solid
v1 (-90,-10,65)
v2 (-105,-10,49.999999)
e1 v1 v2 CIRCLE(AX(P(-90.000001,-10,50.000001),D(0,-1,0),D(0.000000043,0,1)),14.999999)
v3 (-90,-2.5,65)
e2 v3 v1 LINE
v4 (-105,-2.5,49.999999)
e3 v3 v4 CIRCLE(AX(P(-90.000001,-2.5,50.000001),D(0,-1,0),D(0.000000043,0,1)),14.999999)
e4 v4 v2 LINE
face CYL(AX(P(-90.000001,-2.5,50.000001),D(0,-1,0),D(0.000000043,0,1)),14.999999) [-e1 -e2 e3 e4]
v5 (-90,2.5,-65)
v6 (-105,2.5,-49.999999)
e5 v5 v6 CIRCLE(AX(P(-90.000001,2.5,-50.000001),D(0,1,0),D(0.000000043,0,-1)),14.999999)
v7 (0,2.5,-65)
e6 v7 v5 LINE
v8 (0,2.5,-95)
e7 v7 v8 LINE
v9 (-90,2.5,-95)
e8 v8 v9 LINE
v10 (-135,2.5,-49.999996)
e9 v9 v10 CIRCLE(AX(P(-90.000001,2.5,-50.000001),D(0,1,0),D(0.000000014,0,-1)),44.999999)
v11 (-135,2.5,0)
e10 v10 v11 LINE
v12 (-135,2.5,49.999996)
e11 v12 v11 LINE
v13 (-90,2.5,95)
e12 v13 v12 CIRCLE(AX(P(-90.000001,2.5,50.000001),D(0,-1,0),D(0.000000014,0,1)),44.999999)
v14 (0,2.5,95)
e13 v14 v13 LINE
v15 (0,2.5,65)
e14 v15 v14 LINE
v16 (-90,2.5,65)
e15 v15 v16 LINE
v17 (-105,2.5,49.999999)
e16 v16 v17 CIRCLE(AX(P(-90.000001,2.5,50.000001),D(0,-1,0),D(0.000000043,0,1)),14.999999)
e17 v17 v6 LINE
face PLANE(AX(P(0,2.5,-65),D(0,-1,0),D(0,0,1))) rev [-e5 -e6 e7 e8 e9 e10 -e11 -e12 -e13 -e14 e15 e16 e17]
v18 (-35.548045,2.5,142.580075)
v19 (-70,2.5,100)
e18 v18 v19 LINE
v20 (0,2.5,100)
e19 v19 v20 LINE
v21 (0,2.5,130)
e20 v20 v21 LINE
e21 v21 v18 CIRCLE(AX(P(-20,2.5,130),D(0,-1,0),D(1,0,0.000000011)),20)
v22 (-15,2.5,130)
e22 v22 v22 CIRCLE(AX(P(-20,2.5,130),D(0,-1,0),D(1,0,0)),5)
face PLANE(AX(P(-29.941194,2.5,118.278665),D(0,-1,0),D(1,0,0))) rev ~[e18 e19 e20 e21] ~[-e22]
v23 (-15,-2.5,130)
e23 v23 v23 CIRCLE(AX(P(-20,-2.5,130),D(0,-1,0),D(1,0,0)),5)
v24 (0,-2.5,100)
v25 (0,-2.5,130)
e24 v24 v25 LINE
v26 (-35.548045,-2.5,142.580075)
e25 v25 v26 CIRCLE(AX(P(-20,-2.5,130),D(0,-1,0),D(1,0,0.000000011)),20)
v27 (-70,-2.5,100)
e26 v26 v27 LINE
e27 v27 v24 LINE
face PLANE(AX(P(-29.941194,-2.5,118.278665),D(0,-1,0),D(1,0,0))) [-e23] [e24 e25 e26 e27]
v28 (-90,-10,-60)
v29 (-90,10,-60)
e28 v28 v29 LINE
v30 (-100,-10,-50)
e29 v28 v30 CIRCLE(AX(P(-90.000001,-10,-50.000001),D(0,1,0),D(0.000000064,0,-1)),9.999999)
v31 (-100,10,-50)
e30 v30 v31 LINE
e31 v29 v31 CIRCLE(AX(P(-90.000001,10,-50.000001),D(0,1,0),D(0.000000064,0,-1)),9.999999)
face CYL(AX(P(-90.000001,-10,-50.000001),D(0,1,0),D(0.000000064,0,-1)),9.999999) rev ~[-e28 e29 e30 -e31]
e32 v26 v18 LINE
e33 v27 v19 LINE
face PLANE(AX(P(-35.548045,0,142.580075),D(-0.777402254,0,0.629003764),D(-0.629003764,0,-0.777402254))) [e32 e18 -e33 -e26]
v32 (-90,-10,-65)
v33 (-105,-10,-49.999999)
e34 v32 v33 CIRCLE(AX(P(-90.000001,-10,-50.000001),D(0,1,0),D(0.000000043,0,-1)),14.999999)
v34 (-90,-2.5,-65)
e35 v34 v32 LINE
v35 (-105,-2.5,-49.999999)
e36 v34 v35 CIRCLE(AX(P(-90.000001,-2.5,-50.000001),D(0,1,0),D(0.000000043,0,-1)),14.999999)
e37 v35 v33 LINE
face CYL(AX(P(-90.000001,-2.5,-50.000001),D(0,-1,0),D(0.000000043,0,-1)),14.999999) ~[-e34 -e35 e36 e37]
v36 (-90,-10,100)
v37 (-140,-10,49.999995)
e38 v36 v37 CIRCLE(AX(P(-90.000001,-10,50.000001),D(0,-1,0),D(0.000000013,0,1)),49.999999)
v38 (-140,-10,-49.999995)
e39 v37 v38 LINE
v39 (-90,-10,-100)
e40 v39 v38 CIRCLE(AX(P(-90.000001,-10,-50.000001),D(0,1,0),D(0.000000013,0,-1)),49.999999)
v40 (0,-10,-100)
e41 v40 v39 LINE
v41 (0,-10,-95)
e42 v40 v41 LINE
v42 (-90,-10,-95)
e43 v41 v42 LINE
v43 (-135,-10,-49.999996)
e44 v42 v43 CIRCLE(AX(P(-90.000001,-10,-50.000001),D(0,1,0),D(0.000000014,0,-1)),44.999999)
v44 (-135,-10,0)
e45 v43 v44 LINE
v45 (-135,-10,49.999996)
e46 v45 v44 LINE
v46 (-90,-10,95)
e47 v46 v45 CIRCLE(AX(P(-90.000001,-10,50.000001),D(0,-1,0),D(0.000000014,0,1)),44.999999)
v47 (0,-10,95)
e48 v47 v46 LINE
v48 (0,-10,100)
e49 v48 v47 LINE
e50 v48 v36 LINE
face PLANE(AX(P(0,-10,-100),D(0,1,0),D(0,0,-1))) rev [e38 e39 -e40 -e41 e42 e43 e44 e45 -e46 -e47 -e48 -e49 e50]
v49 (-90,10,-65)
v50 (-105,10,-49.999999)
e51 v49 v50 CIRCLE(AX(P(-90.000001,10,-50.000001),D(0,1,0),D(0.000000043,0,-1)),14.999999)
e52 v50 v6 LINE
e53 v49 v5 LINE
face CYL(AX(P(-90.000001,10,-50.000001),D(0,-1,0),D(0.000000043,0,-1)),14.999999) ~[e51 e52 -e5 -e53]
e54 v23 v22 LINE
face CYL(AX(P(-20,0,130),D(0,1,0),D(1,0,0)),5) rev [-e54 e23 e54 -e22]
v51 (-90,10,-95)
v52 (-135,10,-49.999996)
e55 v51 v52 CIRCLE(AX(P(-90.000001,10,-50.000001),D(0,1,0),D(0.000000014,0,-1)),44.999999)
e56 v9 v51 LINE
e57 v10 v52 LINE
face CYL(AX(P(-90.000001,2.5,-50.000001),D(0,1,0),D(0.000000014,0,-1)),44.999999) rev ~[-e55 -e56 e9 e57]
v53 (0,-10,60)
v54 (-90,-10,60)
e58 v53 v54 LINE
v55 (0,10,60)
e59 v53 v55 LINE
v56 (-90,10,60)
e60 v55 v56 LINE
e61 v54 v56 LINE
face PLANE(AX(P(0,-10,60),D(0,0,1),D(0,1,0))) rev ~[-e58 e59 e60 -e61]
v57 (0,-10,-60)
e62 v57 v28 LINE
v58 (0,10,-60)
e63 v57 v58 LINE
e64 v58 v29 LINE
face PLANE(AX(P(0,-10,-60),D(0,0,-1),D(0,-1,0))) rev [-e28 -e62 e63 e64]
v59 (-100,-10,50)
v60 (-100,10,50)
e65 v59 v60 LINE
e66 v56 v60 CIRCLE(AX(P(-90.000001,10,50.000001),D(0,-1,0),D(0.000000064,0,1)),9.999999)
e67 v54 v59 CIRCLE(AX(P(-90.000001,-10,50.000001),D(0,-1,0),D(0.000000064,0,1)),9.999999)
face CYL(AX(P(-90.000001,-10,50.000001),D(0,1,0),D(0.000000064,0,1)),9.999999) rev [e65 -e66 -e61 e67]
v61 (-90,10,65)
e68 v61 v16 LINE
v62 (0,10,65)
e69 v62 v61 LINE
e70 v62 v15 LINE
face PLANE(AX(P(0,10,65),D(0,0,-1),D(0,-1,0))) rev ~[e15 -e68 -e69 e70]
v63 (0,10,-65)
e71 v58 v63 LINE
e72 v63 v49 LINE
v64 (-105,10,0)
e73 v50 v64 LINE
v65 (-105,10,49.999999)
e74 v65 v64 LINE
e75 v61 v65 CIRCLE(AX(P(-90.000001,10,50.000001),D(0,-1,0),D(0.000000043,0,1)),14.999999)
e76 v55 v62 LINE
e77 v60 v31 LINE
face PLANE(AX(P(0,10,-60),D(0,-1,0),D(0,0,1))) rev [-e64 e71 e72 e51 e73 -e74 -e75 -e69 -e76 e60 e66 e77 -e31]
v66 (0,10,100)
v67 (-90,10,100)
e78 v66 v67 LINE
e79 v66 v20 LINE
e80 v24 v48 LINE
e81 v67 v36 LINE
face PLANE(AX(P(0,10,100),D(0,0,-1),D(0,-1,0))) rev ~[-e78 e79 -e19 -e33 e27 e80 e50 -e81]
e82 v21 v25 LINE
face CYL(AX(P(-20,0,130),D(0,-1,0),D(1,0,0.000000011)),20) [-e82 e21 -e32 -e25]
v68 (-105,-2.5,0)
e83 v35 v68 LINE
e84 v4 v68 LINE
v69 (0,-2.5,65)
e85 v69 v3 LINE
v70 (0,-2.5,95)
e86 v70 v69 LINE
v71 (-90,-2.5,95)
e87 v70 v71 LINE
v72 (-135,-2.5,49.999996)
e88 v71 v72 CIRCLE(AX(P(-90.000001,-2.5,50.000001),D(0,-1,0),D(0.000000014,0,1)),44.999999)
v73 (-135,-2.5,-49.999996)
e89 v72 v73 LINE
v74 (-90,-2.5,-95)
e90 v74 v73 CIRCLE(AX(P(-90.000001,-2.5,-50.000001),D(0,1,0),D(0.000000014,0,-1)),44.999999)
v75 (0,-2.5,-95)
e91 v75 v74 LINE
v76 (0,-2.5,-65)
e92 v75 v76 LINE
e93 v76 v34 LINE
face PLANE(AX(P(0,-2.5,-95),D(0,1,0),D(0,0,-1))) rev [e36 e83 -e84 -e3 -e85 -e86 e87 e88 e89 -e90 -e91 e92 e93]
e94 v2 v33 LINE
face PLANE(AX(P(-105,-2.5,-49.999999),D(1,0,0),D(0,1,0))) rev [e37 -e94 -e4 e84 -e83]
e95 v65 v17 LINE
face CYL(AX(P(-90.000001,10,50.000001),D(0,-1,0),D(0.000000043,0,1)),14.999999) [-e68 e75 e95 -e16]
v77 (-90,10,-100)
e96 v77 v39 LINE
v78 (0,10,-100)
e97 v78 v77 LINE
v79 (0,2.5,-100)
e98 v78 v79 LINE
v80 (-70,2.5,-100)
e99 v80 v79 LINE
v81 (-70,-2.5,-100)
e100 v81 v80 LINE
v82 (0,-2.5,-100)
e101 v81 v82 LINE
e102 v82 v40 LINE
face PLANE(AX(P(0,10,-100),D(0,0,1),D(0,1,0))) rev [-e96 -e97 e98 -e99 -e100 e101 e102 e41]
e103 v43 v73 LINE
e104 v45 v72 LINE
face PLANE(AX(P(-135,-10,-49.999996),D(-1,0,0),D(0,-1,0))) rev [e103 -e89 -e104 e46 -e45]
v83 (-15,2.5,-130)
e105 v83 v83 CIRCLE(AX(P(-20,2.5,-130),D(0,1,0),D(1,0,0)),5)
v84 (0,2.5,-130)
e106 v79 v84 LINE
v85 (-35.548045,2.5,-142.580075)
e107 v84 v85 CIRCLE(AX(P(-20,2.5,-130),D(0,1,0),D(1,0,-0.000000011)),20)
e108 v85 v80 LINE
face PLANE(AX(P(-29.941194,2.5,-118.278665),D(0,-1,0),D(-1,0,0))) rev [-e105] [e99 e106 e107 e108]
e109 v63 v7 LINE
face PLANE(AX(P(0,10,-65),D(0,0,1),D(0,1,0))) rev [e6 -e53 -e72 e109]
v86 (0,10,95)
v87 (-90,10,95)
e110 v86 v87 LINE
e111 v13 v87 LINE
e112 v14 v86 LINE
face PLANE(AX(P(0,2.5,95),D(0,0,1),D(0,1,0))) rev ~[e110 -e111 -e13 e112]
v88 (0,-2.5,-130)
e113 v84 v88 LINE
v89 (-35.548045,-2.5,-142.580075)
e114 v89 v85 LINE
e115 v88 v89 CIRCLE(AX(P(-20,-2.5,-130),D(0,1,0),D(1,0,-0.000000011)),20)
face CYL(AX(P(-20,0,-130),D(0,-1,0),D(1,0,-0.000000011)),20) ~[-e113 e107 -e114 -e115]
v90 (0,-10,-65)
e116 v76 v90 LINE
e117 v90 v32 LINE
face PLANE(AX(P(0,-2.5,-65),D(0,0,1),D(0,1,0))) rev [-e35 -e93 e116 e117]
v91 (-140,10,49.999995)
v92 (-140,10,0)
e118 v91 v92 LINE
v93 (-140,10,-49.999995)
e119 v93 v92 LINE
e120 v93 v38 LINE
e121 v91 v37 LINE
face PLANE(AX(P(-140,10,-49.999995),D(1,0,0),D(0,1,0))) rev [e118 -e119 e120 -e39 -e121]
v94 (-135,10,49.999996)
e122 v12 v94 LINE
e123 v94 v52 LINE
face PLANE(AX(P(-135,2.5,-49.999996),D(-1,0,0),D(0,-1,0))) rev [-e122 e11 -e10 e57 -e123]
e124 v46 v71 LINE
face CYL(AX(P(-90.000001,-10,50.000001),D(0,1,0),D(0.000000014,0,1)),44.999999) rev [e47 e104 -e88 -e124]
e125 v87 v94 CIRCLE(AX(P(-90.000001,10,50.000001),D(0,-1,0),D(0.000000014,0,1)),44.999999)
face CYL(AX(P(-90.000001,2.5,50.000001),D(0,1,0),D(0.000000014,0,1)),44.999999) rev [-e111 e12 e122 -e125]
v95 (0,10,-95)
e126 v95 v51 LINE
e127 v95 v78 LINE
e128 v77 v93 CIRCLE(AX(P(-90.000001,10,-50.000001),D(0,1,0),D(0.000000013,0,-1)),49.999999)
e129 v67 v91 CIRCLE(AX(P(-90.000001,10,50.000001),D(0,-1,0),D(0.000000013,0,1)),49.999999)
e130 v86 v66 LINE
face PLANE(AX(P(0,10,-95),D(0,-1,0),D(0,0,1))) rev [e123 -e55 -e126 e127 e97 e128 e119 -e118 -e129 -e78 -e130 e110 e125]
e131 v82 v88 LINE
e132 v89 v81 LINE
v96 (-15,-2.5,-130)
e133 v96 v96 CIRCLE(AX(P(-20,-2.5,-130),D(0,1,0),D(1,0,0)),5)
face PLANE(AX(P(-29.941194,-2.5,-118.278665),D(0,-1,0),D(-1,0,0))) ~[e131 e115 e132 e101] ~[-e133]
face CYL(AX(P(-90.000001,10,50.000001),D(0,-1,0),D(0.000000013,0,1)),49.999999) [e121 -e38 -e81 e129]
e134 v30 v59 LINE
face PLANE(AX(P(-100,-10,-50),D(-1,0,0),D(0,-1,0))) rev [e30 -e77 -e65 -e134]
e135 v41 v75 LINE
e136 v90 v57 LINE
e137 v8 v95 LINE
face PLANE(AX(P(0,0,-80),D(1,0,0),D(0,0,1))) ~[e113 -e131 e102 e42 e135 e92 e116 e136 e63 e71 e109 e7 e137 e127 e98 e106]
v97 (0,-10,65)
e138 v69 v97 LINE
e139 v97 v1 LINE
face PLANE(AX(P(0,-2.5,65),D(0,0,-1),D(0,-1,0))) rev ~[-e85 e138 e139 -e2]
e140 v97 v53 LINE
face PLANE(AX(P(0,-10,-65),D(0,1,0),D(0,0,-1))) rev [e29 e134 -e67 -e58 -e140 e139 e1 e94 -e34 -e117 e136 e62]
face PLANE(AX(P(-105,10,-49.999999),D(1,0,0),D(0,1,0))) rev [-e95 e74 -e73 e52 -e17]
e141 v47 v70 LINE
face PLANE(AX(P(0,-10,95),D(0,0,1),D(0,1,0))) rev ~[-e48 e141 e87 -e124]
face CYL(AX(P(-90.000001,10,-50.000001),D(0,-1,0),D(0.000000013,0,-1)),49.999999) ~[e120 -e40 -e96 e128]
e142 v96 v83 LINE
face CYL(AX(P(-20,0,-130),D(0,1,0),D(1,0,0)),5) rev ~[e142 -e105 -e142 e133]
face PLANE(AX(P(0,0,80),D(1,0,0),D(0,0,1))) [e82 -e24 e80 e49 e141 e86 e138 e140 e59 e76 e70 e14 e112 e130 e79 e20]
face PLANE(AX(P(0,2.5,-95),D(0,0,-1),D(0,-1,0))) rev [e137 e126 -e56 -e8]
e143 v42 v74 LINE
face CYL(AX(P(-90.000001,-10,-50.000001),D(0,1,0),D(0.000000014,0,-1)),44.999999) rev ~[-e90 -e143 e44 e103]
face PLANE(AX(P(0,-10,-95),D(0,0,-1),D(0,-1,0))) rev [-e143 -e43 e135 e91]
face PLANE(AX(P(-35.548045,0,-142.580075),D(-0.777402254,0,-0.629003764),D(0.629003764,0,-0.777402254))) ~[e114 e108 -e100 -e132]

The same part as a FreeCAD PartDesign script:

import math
import FreeCAD as App
import Part
import Sketcher
from FreeCAD import Vector

doc = App.newDocument("Part")
body = doc.addObject("PartDesign::Body", "Body")

# Sketch on YZ plane
sketch1 = doc.addObject("Sketcher::SketchObject", "Sketch")
body.addObject(sketch1)
sketch1.AttachmentSupport = (doc.YZ_Plane, [""])
sketch1.MapMode = "FlatFace"
sketch1.addGeometry(Part.LineSegment(Vector(-10, 60, 0), Vector(10, 60, 0)), False)
sketch1.addGeometry(Part.LineSegment(Vector(10, 60, 0), Vector(10, 65, 0)), False)
sketch1.addGeometry(Part.LineSegment(Vector(10, 65, 0), Vector(2.5, 65, 0)), False)
sketch1.addGeometry(Part.LineSegment(Vector(2.5, 65, 0), Vector(2.5, 95, 0)), False)
sketch1.addGeometry(Part.LineSegment(Vector(2.5, 95, 0), Vector(10, 95, 0)), False)
sketch1.addGeometry(Part.LineSegment(Vector(10, 95, 0), Vector(10, 100, 0)), False)
sketch1.addGeometry(Part.LineSegment(Vector(10, 100, 0), Vector(-10, 100, 0)), False)
sketch1.addGeometry(Part.LineSegment(Vector(-10, 100, 0), Vector(-10, 95, 0)), False)
sketch1.addGeometry(Part.LineSegment(Vector(-10, 95, 0), Vector(-2.5, 95, 0)), False)
sketch1.addGeometry(Part.LineSegment(Vector(-2.5, 95, 0), Vector(-2.5, 65, 0)), False)
sketch1.addGeometry(Part.LineSegment(Vector(-2.5, 65, 0), Vector(-10, 65, 0)), False)
sketch1.addGeometry(Part.LineSegment(Vector(-10, 65, 0), Vector(-10, 60, 0)), False)
sketch1.addConstraint(Sketcher.Constraint("Coincident", 0, 2, 1, 1))
sketch1.addConstraint(Sketcher.Constraint("Coincident", 1, 2, 2, 1))
sketch1.addConstraint(Sketcher.Constraint("Coincident", 2, 2, 3, 1))
sketch1.addConstraint(Sketcher.Constraint("Coincident", 3, 2, 4, 1))
sketch1.addConstraint(Sketcher.Constraint("Coincident", 4, 2, 5, 1))
sketch1.addConstraint(Sketcher.Constraint("Coincident", 5, 2, 6, 1))
sketch1.addConstraint(Sketcher.Constraint("Coincident", 6, 2, 7, 1))
sketch1.addConstraint(Sketcher.Constraint("Coincident", 7, 2, 8, 1))
sketch1.addConstraint(Sketcher.Constraint("Coincident", 8, 2, 9, 1))
sketch1.addConstraint(Sketcher.Constraint("Coincident", 9, 2, 10, 1))
sketch1.addConstraint(Sketcher.Constraint("Coincident", 10, 2, 11, 1))
sketch1.addConstraint(Sketcher.Constraint("Coincident", 11, 2, 0, 1))
sketch1.addConstraint(Sketcher.Constraint("Horizontal", 0))
sketch1.addConstraint(Sketcher.Constraint("Vertical", 1))
sketch1.addConstraint(Sketcher.Constraint("Horizontal", 2))
sketch1.addConstraint(Sketcher.Constraint("Vertical", 3))
sketch1.addConstraint(Sketcher.Constraint("Horizontal", 4))
sketch1.addConstraint(Sketcher.Constraint("Vertical", 5))
sketch1.addConstraint(Sketcher.Constraint("Horizontal", 6))
sketch1.addConstraint(Sketcher.Constraint("Vertical", 7))
sketch1.addConstraint(Sketcher.Constraint("Horizontal", 8))
sketch1.addConstraint(Sketcher.Constraint("Vertical", 9))
sketch1.addConstraint(Sketcher.Constraint("Horizontal", 10))
sketch1.addConstraint(Sketcher.Constraint("Vertical", 11))
sketch1.addConstraint(Sketcher.Constraint("Symmetric", 4, 2, 7, 2, -2))
sketch1.addConstraint(Sketcher.Constraint("Symmetric", 2, 2, 9, 2, -2))
sketch1.addConstraint(Sketcher.Constraint("Vertical", 1, 2, 4, 2))
sketch1.addConstraint(Sketcher.Constraint("Vertical", 7, 2, 10, 2))
sketch1.addConstraint(Sketcher.Constraint("Equal", 1, 5))
sketch1.addConstraint(Sketcher.Constraint("DistanceX", 0, 1, 0, 2, 20.0))
sketch1.addConstraint(Sketcher.Constraint("DistanceY", 1, 1, 1, 2, 5.0))
sketch1.addConstraint(Sketcher.Constraint("DistanceY", 3, 1, 3, 2, 30.0))
sketch1.addConstraint(Sketcher.Constraint("DistanceX", 2, 2, 2, 1, 7.5))
sketch1.addConstraint(Sketcher.Constraint("DistanceY", -1, 1, 0, 2, 60.0))

# Sketch on XZ plane
sketch2 = doc.addObject("Sketcher::SketchObject", "Sketch001")
body.addObject(sketch2)
sketch2.AttachmentSupport = (doc.XZ_Plane, [""])
sketch2.MapMode = "FlatFace"
sketch2.addGeometry(Part.LineSegment(Vector(0, 60, 0), Vector(-90, 60, 0)), False)
sketch2.addGeometry(Part.ArcOfCircle(Part.Circle(Vector(-90.000001, 50.000001, 0), Vector(0, 0, 1), 9.999999), math.radians(89.999996), math.radians(180.000004)), False)
sketch2.addGeometry(Part.LineSegment(Vector(-100, 50, 0), Vector(-100, 0, 0)), False)
sketch2.addConstraint(Sketcher.Constraint("Tangent", 0, 2, 1, 1))
sketch2.addConstraint(Sketcher.Constraint("Tangent", 1, 2, 2, 1))
sketch2.addConstraint(Sketcher.Constraint("Horizontal", 0))
sketch2.addConstraint(Sketcher.Constraint("Vertical", 2))
sketch2.addConstraint(Sketcher.Constraint("PointOnObject", 0, 1, -2))
sketch2.addConstraint(Sketcher.Constraint("PointOnObject", 2, 2, -1))
sketch2.addConstraint(Sketcher.Constraint("Radius", 1, 9.999999))
sketch2.addConstraint(Sketcher.Constraint("DistanceX", 0, 2, 0, 1, 90.0))
sketch2.addConstraint(Sketcher.Constraint("DistanceY", 2, 2, 2, 1, 50.0))
doc.recompute()

additivepipe = doc.addObject("PartDesign::AdditivePipe", "AdditivePipe")
body.addObject(additivepipe)
additivepipe.Profile = sketch1
additivepipe.Spine = (sketch2, ["Edge1", "Edge2", "Edge3"])
body2 = doc.addObject("PartDesign::Body", "Body001")
doc.recompute()

body2.BaseFeature = body
doc.recompute()

mirroring = doc.addObject("Part::Mirroring", "Mirroring")
mirroring.Source = body
mirroring.Base = Vector(0, 0, 0)
mirroring.Normal = Vector(0, 0, 1)
body3 = doc.addObject("PartDesign::Body", "Body002")
body3.BaseFeature = mirroring
boolean = doc.addObject("PartDesign::Boolean", "Boolean")
body2.addObject(boolean)
boolean.Type = "Fuse"
boolean.addObjects([body3])
doc.recompute()

# Sketch on XZ plane
sketch3 = doc.addObject("Sketcher::SketchObject", "Sketch002")
body2.addObject(sketch3)
sketch3.AttachmentSupport = (doc.getObject("XZ_Plane001"), [""])
sketch3.MapMode = "FlatFace"
sketch3.addGeometry(Part.LineSegment(Vector(-70, 100, 0), Vector(0, 100, 0)), False)
sketch3.addGeometry(Part.LineSegment(Vector(0, 100, 0), Vector(0, 130, 0)), False)
sketch3.addGeometry(Part.ArcOfCircle(Part.Circle(Vector(-20, 130, 0), Vector(0, 0, 1), 20), math.radians(0.000001), math.radians(141.02334)), False)
sketch3.addGeometry(Part.LineSegment(Vector(-35.548045, 142.580075, 0), Vector(-70, 100, 0)), False)
sketch3.addGeometry(Part.Circle(Vector(-20, 130, 0), Vector(0, 0, 1), 5), False)
sketch3.addConstraint(Sketcher.Constraint("Coincident", 0, 2, 1, 1))
sketch3.addConstraint(Sketcher.Constraint("Tangent", 1, 2, 2, 1))
sketch3.addConstraint(Sketcher.Constraint("Tangent", 2, 2, 3, 1))
sketch3.addConstraint(Sketcher.Constraint("Coincident", 3, 2, 0, 1))
sketch3.addConstraint(Sketcher.Constraint("Horizontal", 0))
sketch3.addConstraint(Sketcher.Constraint("Vertical", 1))
sketch3.addConstraint(Sketcher.Constraint("Coincident", 4, 3, 2, 3))
sketch3.addConstraint(Sketcher.Constraint("PointOnObject", 0, 2, -2))
sketch3.addConstraint(Sketcher.Constraint("Diameter", 4, 10.0))
sketch3.addConstraint(Sketcher.Constraint("Radius", 2, 20.0))
sketch3.addConstraint(Sketcher.Constraint("DistanceX", 0, 1, 0, 2, 70.0))
sketch3.addConstraint(Sketcher.Constraint("DistanceY", 1, 1, 1, 2, 30.0))
sketch3.addConstraint(Sketcher.Constraint("DistanceY", -1, 1, 2, 3, 130.0))
pad1 = doc.addObject("PartDesign::Pad", "Pad")
body2.addObject(pad1)
pad1.Profile = sketch3
pad1.Length = 5
pad1.Midplane = True
body4 = doc.addObject("PartDesign::Body", "Body003")
doc.recompute()

body4.BaseFeature = body2
doc.recompute()

mirroring2 = doc.addObject("Part::Mirroring", "Mirroring001")
mirroring2.Source = body2
mirroring2.Base = Vector(0, 0, 0)
mirroring2.Normal = Vector(0, 0, 1)
body5 = doc.addObject("PartDesign::Body", "Body004")
body5.BaseFeature = mirroring2
boolean2 = doc.addObject("PartDesign::Boolean", "Boolean001")
body4.addObject(boolean2)
boolean2.Type = "Fuse"
boolean2.addObjects([body5])
doc.recompute()
mirroring.Visibility = False
mirroring2.Visibility = False

doc.recompute()
